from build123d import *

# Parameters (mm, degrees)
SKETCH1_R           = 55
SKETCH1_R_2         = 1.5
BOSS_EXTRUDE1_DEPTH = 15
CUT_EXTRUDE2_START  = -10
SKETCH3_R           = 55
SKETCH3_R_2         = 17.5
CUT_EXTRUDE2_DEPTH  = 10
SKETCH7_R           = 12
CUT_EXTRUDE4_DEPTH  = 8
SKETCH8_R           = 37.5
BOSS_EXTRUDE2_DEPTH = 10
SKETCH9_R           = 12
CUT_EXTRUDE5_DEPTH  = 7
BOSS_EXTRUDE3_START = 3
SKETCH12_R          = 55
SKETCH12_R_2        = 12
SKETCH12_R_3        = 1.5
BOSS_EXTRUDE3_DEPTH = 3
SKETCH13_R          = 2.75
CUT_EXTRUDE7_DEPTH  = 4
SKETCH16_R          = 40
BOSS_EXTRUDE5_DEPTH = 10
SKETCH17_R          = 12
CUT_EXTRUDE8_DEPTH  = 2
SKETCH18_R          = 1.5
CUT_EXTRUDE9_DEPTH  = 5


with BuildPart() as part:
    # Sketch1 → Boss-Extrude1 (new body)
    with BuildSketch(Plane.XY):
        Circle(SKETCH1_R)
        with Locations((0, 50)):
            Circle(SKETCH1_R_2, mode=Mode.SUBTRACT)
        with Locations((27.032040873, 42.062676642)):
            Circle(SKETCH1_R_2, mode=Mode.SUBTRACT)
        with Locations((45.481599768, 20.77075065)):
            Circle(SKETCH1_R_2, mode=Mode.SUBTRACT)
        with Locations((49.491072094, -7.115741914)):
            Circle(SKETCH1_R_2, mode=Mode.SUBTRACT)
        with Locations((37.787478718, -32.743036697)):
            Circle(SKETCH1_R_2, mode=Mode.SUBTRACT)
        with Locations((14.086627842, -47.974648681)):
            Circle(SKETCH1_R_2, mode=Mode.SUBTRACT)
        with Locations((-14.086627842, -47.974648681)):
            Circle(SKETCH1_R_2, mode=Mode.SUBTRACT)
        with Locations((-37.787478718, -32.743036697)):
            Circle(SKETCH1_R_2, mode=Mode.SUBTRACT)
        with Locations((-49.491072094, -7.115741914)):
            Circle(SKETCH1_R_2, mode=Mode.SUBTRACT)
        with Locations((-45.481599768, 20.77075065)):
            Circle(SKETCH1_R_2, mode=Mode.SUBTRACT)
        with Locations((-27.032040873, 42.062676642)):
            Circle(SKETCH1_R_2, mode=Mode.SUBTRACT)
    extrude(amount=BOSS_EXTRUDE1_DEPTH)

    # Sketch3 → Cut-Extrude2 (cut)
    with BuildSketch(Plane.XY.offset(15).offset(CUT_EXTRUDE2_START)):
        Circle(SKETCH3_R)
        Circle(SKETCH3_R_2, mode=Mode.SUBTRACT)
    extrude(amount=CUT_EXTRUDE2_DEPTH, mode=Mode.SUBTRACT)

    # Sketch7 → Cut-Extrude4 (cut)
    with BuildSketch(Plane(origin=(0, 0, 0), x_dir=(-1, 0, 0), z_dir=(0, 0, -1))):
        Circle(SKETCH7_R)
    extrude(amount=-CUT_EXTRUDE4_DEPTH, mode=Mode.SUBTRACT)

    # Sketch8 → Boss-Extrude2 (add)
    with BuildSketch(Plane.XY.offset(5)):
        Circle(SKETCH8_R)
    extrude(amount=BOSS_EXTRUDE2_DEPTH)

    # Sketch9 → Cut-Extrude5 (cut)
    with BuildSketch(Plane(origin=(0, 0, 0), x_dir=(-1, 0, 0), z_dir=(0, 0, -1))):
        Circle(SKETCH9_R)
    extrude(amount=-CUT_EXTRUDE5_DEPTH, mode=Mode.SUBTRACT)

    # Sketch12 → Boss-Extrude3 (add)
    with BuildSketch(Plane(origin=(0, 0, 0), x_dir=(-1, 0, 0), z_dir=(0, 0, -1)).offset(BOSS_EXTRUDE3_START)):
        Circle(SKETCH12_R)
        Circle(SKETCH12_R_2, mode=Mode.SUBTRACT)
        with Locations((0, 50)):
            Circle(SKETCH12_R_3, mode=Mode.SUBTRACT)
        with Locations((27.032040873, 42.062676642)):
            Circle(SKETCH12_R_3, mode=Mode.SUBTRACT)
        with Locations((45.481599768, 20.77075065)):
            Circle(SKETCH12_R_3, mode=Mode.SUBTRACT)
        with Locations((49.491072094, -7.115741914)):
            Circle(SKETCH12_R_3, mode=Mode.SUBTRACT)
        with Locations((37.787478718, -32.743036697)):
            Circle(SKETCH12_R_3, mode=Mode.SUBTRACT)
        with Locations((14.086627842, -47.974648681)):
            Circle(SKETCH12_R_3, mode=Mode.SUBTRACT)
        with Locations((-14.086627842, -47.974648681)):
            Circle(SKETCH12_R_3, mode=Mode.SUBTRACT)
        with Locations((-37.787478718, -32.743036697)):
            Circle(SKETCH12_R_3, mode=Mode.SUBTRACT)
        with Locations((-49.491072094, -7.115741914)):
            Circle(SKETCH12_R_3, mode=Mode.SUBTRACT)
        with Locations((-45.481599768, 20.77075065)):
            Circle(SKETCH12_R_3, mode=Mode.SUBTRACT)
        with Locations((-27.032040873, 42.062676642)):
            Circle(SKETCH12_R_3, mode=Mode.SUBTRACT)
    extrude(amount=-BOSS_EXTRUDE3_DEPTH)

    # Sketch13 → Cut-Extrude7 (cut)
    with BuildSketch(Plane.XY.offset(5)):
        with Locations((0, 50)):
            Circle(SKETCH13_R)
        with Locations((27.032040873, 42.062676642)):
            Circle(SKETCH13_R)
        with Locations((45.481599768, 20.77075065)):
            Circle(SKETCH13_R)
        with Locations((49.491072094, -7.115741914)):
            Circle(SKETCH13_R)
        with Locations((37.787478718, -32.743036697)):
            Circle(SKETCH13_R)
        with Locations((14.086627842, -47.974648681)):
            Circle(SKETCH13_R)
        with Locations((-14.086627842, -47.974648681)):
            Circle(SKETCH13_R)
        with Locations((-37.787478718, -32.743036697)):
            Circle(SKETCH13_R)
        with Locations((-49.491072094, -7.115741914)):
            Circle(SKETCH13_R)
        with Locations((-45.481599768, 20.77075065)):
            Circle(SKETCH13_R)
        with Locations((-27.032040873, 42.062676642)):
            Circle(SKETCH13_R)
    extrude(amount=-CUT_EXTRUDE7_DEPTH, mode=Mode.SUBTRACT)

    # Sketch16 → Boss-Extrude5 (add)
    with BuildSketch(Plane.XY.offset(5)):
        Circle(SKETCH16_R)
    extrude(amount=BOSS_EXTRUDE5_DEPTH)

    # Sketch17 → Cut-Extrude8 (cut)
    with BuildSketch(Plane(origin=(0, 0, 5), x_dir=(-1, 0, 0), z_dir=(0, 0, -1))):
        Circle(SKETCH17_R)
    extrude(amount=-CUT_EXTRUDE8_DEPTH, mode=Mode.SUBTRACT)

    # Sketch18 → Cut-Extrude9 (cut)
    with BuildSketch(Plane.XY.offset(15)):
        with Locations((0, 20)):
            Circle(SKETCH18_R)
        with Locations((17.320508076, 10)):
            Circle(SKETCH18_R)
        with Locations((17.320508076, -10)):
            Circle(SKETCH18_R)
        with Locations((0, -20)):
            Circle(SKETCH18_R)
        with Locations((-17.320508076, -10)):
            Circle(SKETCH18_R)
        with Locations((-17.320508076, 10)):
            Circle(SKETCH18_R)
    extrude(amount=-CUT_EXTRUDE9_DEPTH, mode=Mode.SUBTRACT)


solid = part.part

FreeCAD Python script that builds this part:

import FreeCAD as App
import Part
import Sketcher
from FreeCAD import Vector

doc = App.newDocument("Part")
params = doc.addObject("Spreadsheet::Sheet", "Params")
for row, (alias, value) in enumerate([
    ("sketch1_diameter", "110 mm"),
    ("sketch1_diameter2", "3 mm"),
    ("pad1_length", "15 mm"),
    ("sketch2_diameter", "110 mm"),
    ("sketch2_diameter2", "35 mm"),
    ("pocket1_length", "10 mm"),
    ("sketch3_diameter", "24 mm"),
    ("pocket2_length", "8 mm"),
    ("sketch4_diameter", "75 mm"),
    ("pad2_length", "10 mm"),
    ("sketch5_diameter", "24 mm"),
    ("pocket3_length", "7 mm"),
    ("sketch6_diameter", "110 mm"),
    ("sketch6_diameter2", "3 mm"),
    ("sketch6_diameter3", "24 mm"),
    ("pad3_length", "3 mm"),
    ("sketch7_diameter", "5.5 mm"),
    ("pocket4_length", "4 mm"),
    ("sketch8_diameter", "80 mm"),
    ("pad4_length", "10 mm"),
    ("sketch9_diameter", "24 mm"),
    ("pocket5_length", "2 mm"),
    ("sketch10_diameter", "3 mm"),
    ("pocket6_length", "5 mm"),
], start=1):
    params.set(f"A{row}", alias)
    params.set(f"B{row}", "=" + value)
    params.setAlias(f"B{row}", alias)

body = doc.addObject("PartDesign::Body", "Body")

sketch1 = doc.addObject("Sketcher::SketchObject", "Sketch")
body.addObject(sketch1)
sketch1.AttachmentSupport = (doc.XY_Plane, [""])
sketch1.MapMode = "FlatFace"
sketch1.addGeometry(Part.Circle(Vector(0, 0, 0), Vector(0, 0, 1), 55), False)
sketch1.addGeometry(Part.Circle(Vector(-37.8, -32.7, 0), Vector(0, 0, 1), 1.5), False)
sketch1.addGeometry(Part.Circle(Vector(-14.1, -48, 0), Vector(0, 0, 1), 1.5), False)
sketch1.addGeometry(Part.Circle(Vector(-49.5, -7.1, 0), Vector(0, 0, 1), 1.5), False)
sketch1.addGeometry(Part.Circle(Vector(14.1, -48, 0), Vector(0, 0, 1), 1.5), False)
sketch1.addGeometry(Part.Circle(Vector(37.8, -32.7, 0), Vector(0, 0, 1), 1.5), False)
sketch1.addGeometry(Part.Circle(Vector(49.5, -7.1, 0), Vector(0, 0, 1), 1.5), False)
sketch1.addGeometry(Part.Circle(Vector(-45.5, 20.8, 0), Vector(0, 0, 1), 1.5), False)
sketch1.addGeometry(Part.Circle(Vector(-27, 42.1, 0), Vector(0, 0, 1), 1.5), False)
sketch1.addGeometry(Part.Circle(Vector(45.5, 20.8, 0), Vector(0, 0, 1), 1.5), False)
sketch1.addGeometry(Part.Circle(Vector(0, 50, 0), Vector(0, 0, 1), 1.5), False)
sketch1.addGeometry(Part.Circle(Vector(27, 42.1, 0), Vector(0, 0, 1), 1.5), False)
sketch1.addConstraint(Sketcher.Constraint("Coincident", 0, 3, -1, 1))
sketch1.addConstraint(Sketcher.Constraint("Equal", 1, 2))
sketch1.addConstraint(Sketcher.Constraint("Equal", 2, 3))
sketch1.addConstraint(Sketcher.Constraint("Equal", 3, 4))
sketch1.addConstraint(Sketcher.Constraint("Equal", 4, 5))
sketch1.addConstraint(Sketcher.Constraint("Equal", 5, 6))
sketch1.addConstraint(Sketcher.Constraint("Equal", 6, 7))
sketch1.addConstraint(Sketcher.Constraint("Equal", 7, 8))
sketch1.addConstraint(Sketcher.Constraint("Equal", 8, 9))
sketch1.addConstraint(Sketcher.Constraint("Equal", 9, 10))
sketch1.addConstraint(Sketcher.Constraint("Equal", 10, 11))
sketch1.addConstraint(Sketcher.Constraint("Symmetric", 2, 3, 4, 3, -2))
sketch1.addConstraint(Sketcher.Constraint("Symmetric", 1, 3, 5, 3, -2))
sketch1.addConstraint(Sketcher.Constraint("Symmetric", 3, 3, 6, 3, -2))
sketch1.addConstraint(Sketcher.Constraint("Symmetric", 7, 3, 9, 3, -2))
sketch1.addConstraint(Sketcher.Constraint("Symmetric", 8, 3, 11, 3, -2))
sketch1.addConstraint(Sketcher.Constraint("PointOnObject", 10, 3, -2))
sketch1.addConstraint(Sketcher.Constraint("Diameter", 0, 110.0))
sketch1.addConstraint(Sketcher.Constraint("Diameter", 1, 3.0))
sketch1.addConstraint(Sketcher.Constraint("DistanceY", -1, 1, 10, 3, 50.0))
sketch1.addConstraint(Sketcher.Constraint("DistanceX", 7, 3, -1, 1, 45.4816))
sketch1.addConstraint(Sketcher.Constraint("DistanceX", 3, 3, 4, 3, 63.5777))
sketch1.addConstraint(Sketcher.Constraint("DistanceY", 2, 3, 7, 3, 68.745399))
sketch1.addConstraint(Sketcher.Constraint("DistanceX", 1, 3, -1, 1, 37.787479))
sketch1.addConstraint(Sketcher.Constraint("DistanceY", 2, 3, -1, 1, 47.974649))
sketch1.addConstraint(Sketcher.Constraint("DistanceY", 3, 3, -1, 1, 7.115742))
sketch1.addConstraint(Sketcher.Constraint("DistanceX", 8, 3, -1, 1, 27.032041))
sketch1.addConstraint(Sketcher.Constraint("DistanceX", 1, 3, 2, 3, 23.700851))
sketch1.addConstraint(Sketcher.Constraint("DistanceY", 2, 3, 1, 3, 15.231612))
sketch1.addConstraint(Sketcher.Constraint("DistanceY", 3, 3, 8, 3, 49.178419))
sketch1.setExpression("Constraints[17]", "Params.sketch1_diameter")
sketch1.setExpression("Constraints[18]", "Params.sketch1_diameter2")
pad1 = doc.addObject("PartDesign::Pad", "Pad")
body.addObject(pad1)
pad1.Profile = sketch1
pad1.setExpression("Length", "Params.pad1_length")

sketch2 = doc.addObject("Sketcher::SketchObject", "Sketch001")
body.addObject(sketch2)
sketch2.AttachmentSupport = (doc.XY_Plane, [""])
sketch2.MapMode = "FlatFace"
sketch2.AttachmentOffset = App.Placement(Vector(0, 0, 5), App.Rotation())
sketch2.addGeometry(Part.Circle(Vector(0, 0, 0), Vector(0, 0, 1), 55), False)
sketch2.addGeometry(Part.Circle(Vector(0, 0, 0), Vector(0, 0, 1), 18), False)
sketch2.addConstraint(Sketcher.Constraint("Coincident", 0, 3, -1, 1))
sketch2.addConstraint(Sketcher.Constraint("Coincident", 1, 3, -1, 1))
sketch2.addConstraint(Sketcher.Constraint("Diameter", 0, 110.0))
sketch2.addConstraint(Sketcher.Constraint("Diameter", 1, 35.0))
sketch2.setExpression("Constraints[2]", "Params.sketch2_diameter")
sketch2.setExpression("Constraints[3]", "Params.sketch2_diameter2")
pocket1 = doc.addObject("PartDesign::Pocket", "Pocket")
body.addObject(pocket1)
pocket1.Profile = sketch2
pocket1.setExpression("Length", "Params.pocket1_length")
pocket1.Reversed = True

sketch3 = doc.addObject("Sketcher::SketchObject", "Sketch002")
body.addObject(sketch3)
sketch3.AttachmentSupport = (doc.XY_Plane, [""])
sketch3.MapMode = "FlatFace"
sketch3.addGeometry(Part.Circle(Vector(0, 0, 0), Vector(0, 0, 1), 12), False)
sketch3.addConstraint(Sketcher.Constraint("Coincident", 0, 3, -1, 1))
sketch3.addConstraint(Sketcher.Constraint("Diameter", 0, 24.0))
sketch3.setExpression("Constraints[1]", "Params.sketch3_diameter")
pocket2 = doc.addObject("PartDesign::Pocket", "Pocket001")
body.addObject(pocket2)
pocket2.Profile = sketch3
pocket2.setExpression("Length", "Params.pocket2_length")
pocket2.Reversed = True

sketch4 = doc.addObject("Sketcher::SketchObject", "Sketch003")
body.addObject(sketch4)
sketch4.AttachmentSupport = (doc.XY_Plane, [""])
sketch4.MapMode = "FlatFace"
sketch4.AttachmentOffset = App.Placement(Vector(0, 0, 5), App.Rotation())
sketch4.addGeometry(Part.Circle(Vector(0, 0, 0), Vector(0, 0, 1), 38), False)
sketch4.addConstraint(Sketcher.Constraint("Coincident", 0, 3, -1, 1))
sketch4.addConstraint(Sketcher.Constraint("Diameter", 0, 75.0))
sketch4.setExpression("Constraints[1]", "Params.sketch4_diameter")
pad2 = doc.addObject("PartDesign::Pad", "Pad001")
body.addObject(pad2)
pad2.Profile = sketch4
pad2.setExpression("Length", "Params.pad2_length")

sketch5 = doc.addObject("Sketcher::SketchObject", "Sketch004")
body.addObject(sketch5)
sketch5.AttachmentSupport = (doc.XY_Plane, [""])
sketch5.MapMode = "FlatFace"
sketch5.addGeometry(Part.Circle(Vector(0, 0, 0), Vector(0, 0, 1), 12), False)
sketch5.addConstraint(Sketcher.Constraint("Coincident", 0, 3, -1, 1))
sketch5.addConstraint(Sketcher.Constraint("Diameter", 0, 24.0))
sketch5.setExpression("Constraints[1]", "Params.sketch5_diameter")
pocket3 = doc.addObject("PartDesign::Pocket", "Pocket002")
body.addObject(pocket3)
pocket3.Profile = sketch5
pocket3.setExpression("Length", "Params.pocket3_length")
pocket3.Reversed = True

sketch6 = doc.addObject("Sketcher::SketchObject", "Sketch005")
body.addObject(sketch6)
sketch6.AttachmentSupport = (doc.XY_Plane, [""])
sketch6.MapMode = "FlatFace"
sketch6.AttachmentOffset = App.Placement(Vector(0, 0, -3), App.Rotation())
sketch6.addGeometry(Part.Circle(Vector(0, 0, 0), Vector(0, 0, 1), 55), False)
sketch6.addGeometry(Part.Circle(Vector(37.8, -32.7, 0), Vector(0, 0, 1), 1.5), False)
sketch6.addGeometry(Part.Circle(Vector(14.1, -48, 0), Vector(0, 0, 1), 1.5), False)
sketch6.addGeometry(Part.Circle(Vector(49.5, -7.1, 0), Vector(0, 0, 1), 1.5), False)
sketch6.addGeometry(Part.Circle(Vector(-14.1, -48, 0), Vector(0, 0, 1), 1.5), False)
sketch6.addGeometry(Part.Circle(Vector(-37.8, -32.7, 0), Vector(0, 0, 1), 1.5), False)
sketch6.addGeometry(Part.Circle(Vector(0, 0, 0), Vector(0, 0, 1), 12), False)
sketch6.addGeometry(Part.Circle(Vector(-49.5, -7.1, 0), Vector(0, 0, 1), 1.5), False)
sketch6.addGeometry(Part.Circle(Vector(45.5, 20.8, 0), Vector(0, 0, 1), 1.5), False)
sketch6.addGeometry(Part.Circle(Vector(27, 42.1, 0), Vector(0, 0, 1), 1.5), False)
sketch6.addGeometry(Part.Circle(Vector(-45.5, 20.8, 0), Vector(0, 0, 1), 1.5), False)
sketch6.addGeometry(Part.Circle(Vector(0, 50, 0), Vector(0, 0, 1), 1.5), False)
sketch6.addGeometry(Part.Circle(Vector(-27, 42.1, 0), Vector(0, 0, 1), 1.5), False)
sketch6.addConstraint(Sketcher.Constraint("Coincident", 0, 3, -1, 1))
sketch6.addConstraint(Sketcher.Constraint("Coincident", 6, 3, -1, 1))
sketch6.addConstraint(Sketcher.Constraint("Equal", 1, 2))
sketch6.addConstraint(Sketcher.Constraint("Equal", 2, 3))
sketch6.addConstraint(Sketcher.Constraint("Equal", 3, 4))
sketch6.addConstraint(Sketcher.Constraint("Equal", 4, 5))
sketch6.addConstraint(Sketcher.Constraint("Equal", 5, 7))
sketch6.addConstraint(Sketcher.Constraint("Equal", 7, 8))
sketch6.addConstraint(Sketcher.Constraint("Equal", 8, 9))
sketch6.addConstraint(Sketcher.Constraint("Equal", 9, 10))
sketch6.addConstraint(Sketcher.Constraint("Equal", 10, 11))
sketch6.addConstraint(Sketcher.Constraint("Equal", 11, 12))
sketch6.addConstraint(Sketcher.Constraint("Symmetric", 2, 3, 4, 3, -2))
sketch6.addConstraint(Sketcher.Constraint("Symmetric", 1, 3, 5, 3, -2))
sketch6.addConstraint(Sketcher.Constraint("Symmetric", 3, 3, 7, 3, -2))
sketch6.addConstraint(Sketcher.Constraint("Symmetric", 8, 3, 10, 3, -2))
sketch6.addConstraint(Sketcher.Constraint("Symmetric", 9, 3, 12, 3, -2))
sketch6.addConstraint(Sketcher.Constraint("PointOnObject", 11, 3, -2))
sketch6.addConstraint(Sketcher.Constraint("Diameter", 0, 110.0))
sketch6.addConstraint(Sketcher.Constraint("Diameter", 1, 3.0))
sketch6.addConstraint(Sketcher.Constraint("Diameter", 6, 24.0))
sketch6.addConstraint(Sketcher.Constraint("DistanceY", -1, 1, 11, 3, 50.0))
sketch6.addConstraint(Sketcher.Constraint("DistanceX", -1, 1, 8, 3, 45.4816))
sketch6.addConstraint(Sketcher.Constraint("DistanceX", 4, 3, 3, 3, 63.5777))
sketch6.addConstraint(Sketcher.Constraint("DistanceY", 2, 3, 8, 3, 68.745399))
sketch6.addConstraint(Sketcher.Constraint("DistanceX", -1, 1, 1, 3, 37.787479))
sketch6.addConstraint(Sketcher.Constraint("DistanceY", 2, 3, -1, 1, 47.974649))
sketch6.addConstraint(Sketcher.Constraint("DistanceY", 3, 3, -1, 1, 7.115742))
sketch6.addConstraint(Sketcher.Constraint("DistanceX", -1, 1, 9, 3, 27.032041))
sketch6.addConstraint(Sketcher.Constraint("DistanceX", 2, 3, 1, 3, 23.700851))
sketch6.addConstraint(Sketcher.Constraint("DistanceY", 2, 3, 1, 3, 15.231612))
sketch6.addConstraint(Sketcher.Constraint("DistanceY", 3, 3, 9, 3, 49.178419))
sketch6.setExpression("Constraints[18]", "Params.sketch6_diameter")
sketch6.setExpression("Constraints[19]", "Params.sketch6_diameter2")
sketch6.setExpression("Constraints[20]", "Params.sketch6_diameter3")
pad3 = doc.addObject("PartDesign::Pad", "Pad002")
body.addObject(pad3)
pad3.Profile = sketch6
pad3.setExpression("Length", "Params.pad3_length")

sketch7 = doc.addObject("Sketcher::SketchObject", "Sketch006")
body.addObject(sketch7)
sketch7.AttachmentSupport = (doc.XY_Plane, [""])
sketch7.MapMode = "FlatFace"
sketch7.AttachmentOffset = App.Placement(Vector(0, 0, 5), App.Rotation())
sketch7.addGeometry(Part.Circle(Vector(0, 50, 0), Vector(0, 0, 1), 2.8), False)
sketch7.addGeometry(Part.Circle(Vector(27, 42.1, 0), Vector(0, 0, 1), 2.8), False)
sketch7.addGeometry(Part.Circle(Vector(45.5, 20.8, 0), Vector(0, 0, 1), 2.8), False)
sketch7.addGeometry(Part.Circle(Vector(49.5, -7.1, 0), Vector(0, 0, 1), 2.8), False)
sketch7.addGeometry(Part.Circle(Vector(37.8, -32.7, 0), Vector(0, 0, 1), 2.8), False)
sketch7.addGeometry(Part.Circle(Vector(14.1, -48, 0), Vector(0, 0, 1), 2.8), False)
sketch7.addGeometry(Part.Circle(Vector(-14.1, -48, 0), Vector(0, 0, 1), 2.8), False)
sketch7.addGeometry(Part.Circle(Vector(-37.8, -32.7, 0), Vector(0, 0, 1), 2.8), False)
sketch7.addGeometry(Part.Circle(Vector(-49.5, -7.1, 0), Vector(0, 0, 1), 2.8), False)
sketch7.addGeometry(Part.Circle(Vector(-45.5, 20.8, 0), Vector(0, 0, 1), 2.8), False)
sketch7.addGeometry(Part.Circle(Vector(-27, 42.1, 0), Vector(0, 0, 1), 2.8), False)
sketch7.addConstraint(Sketcher.Constraint("Equal", 0, 1))
sketch7.addConstraint(Sketcher.Constraint("Equal", 1, 2))
sketch7.addConstraint(Sketcher.Constraint("Equal", 2, 3))
sketch7.addConstraint(Sketcher.Constraint("Equal", 3, 4))
sketch7.addConstraint(Sketcher.Constraint("Equal", 4, 5))
sketch7.addConstraint(Sketcher.Constraint("Equal", 5, 6))
sketch7.addConstraint(Sketcher.Constraint("Equal", 6, 7))
sketch7.addConstraint(Sketcher.Constraint("Equal", 7, 8))
sketch7.addConstraint(Sketcher.Constraint("Equal", 8, 9))
sketch7.addConstraint(Sketcher.Constraint("Equal", 9, 10))
sketch7.addConstraint(Sketcher.Constraint("Symmetric", 5, 3, 6, 3, -2))
sketch7.addConstraint(Sketcher.Constraint("Symmetric", 4, 3, 7, 3, -2))
sketch7.addConstraint(Sketcher.Constraint("Symmetric", 3, 3, 8, 3, -2))
sketch7.addConstraint(Sketcher.Constraint("Symmetric", 2, 3, 9, 3, -2))
sketch7.addConstraint(Sketcher.Constraint("Symmetric", 1, 3, 10, 3, -2))
sketch7.addConstraint(Sketcher.Constraint("PointOnObject", 0, 3, -2))
sketch7.addConstraint(Sketcher.Constraint("Diameter", 0, 5.5))
sketch7.addConstraint(Sketcher.Constraint("DistanceY", -1, 1, 0, 3, 50.0))
sketch7.addConstraint(Sketcher.Constraint("DistanceX", -1, 1, 2, 3, 45.4816))
sketch7.addConstraint(Sketcher.Constraint("DistanceY", 5, 3, 2, 3, 68.745399))
sketch7.addConstraint(Sketcher.Constraint("DistanceX", 6, 3, 3, 3, 63.5777))
sketch7.addConstraint(Sketcher.Constraint("DistanceX", -1, 1, 1, 3, 27.032041))
sketch7.addConstraint(Sketcher.Constraint("DistanceY", -1, 1, 2, 3, 20.770751))
sketch7.addConstraint(Sketcher.Constraint("DistanceY", 3, 3, -1, 1, 7.115742))
sketch7.addConstraint(Sketcher.Constraint("DistanceX", -1, 1, 4, 3, 37.787479))
sketch7.addConstraint(Sketcher.Constraint("DistanceX", 1, 3, 3, 3, 22.459031))
sketch7.addConstraint(Sketcher.Constraint("DistanceY", 3, 3, 1, 3, 49.178419))
sketch7.addConstraint(Sketcher.Constraint("DistanceY", 5, 3, 4, 3, 15.231612))
sketch7.setExpression("Constraints[16]", "Params.sketch7_diameter")
pocket4 = doc.addObject("PartDesign::Pocket", "Pocket003")
body.addObject(pocket4)
pocket4.Profile = sketch7
pocket4.setExpression("Length", "Params.pocket4_length")

sketch8 = doc.addObject("Sketcher::SketchObject", "Sketch007")
body.addObject(sketch8)
sketch8.AttachmentSupport = (doc.XY_Plane, [""])
sketch8.MapMode = "FlatFace"
sketch8.AttachmentOffset = App.Placement(Vector(0, 0, 5), App.Rotation())
sketch8.addGeometry(Part.Circle(Vector(0, 0, 0), Vector(0, 0, 1), 40), False)
sketch8.addConstraint(Sketcher.Constraint("Coincident", 0, 3, -1, 1))
sketch8.addConstraint(Sketcher.Constraint("Diameter", 0, 80.0))
sketch8.setExpression("Constraints[1]", "Params.sketch8_diameter")
pad4 = doc.addObject("PartDesign::Pad", "Pad003")
body.addObject(pad4)
pad4.Profile = sketch8
pad4.setExpression("Length", "Params.pad4_length")

sketch9 = doc.addObject("Sketcher::SketchObject", "Sketch008")
body.addObject(sketch9)
sketch9.AttachmentSupport = (doc.XY_Plane, [""])
sketch9.MapMode = "FlatFace"
sketch9.AttachmentOffset = App.Placement(Vector(0, 0, 5), App.Rotation())
sketch9.addGeometry(Part.Circle(Vector(0, 0, 0), Vector(0, 0, 1), 12), False)
sketch9.addConstraint(Sketcher.Constraint("Coincident", 0, 3, -1, 1))
sketch9.addConstraint(Sketcher.Constraint("Diameter", 0, 24.0))
sketch9.setExpression("Constraints[1]", "Params.sketch9_diameter")
pocket5 = doc.addObject("PartDesign::Pocket", "Pocket004")
body.addObject(pocket5)
pocket5.Profile = sketch9
pocket5.setExpression("Length", "Params.pocket5_length")
pocket5.Reversed = True

sketch10 = doc.addObject("Sketcher::SketchObject", "Sketch009")
body.addObject(sketch10)
sketch10.AttachmentSupport = (doc.XY_Plane, [""])
sketch10.MapMode = "FlatFace"
sketch10.AttachmentOffset = App.Placement(Vector(0, 0, 15), App.Rotation())
sketch10.addGeometry(Part.Circle(Vector(0, 20, 0), Vector(0, 0, 1), 1.5), False)
sketch10.addGeometry(Part.Circle(Vector(17.3, 10, 0), Vector(0, 0, 1), 1.5), False)
sketch10.addGeometry(Part.Circle(Vector(17.3, -10, 0), Vector(0, 0, 1), 1.5), False)
sketch10.addGeometry(Part.Circle(Vector(0, -20, 0), Vector(0, 0, 1), 1.5), False)
sketch10.addGeometry(Part.Circle(Vector(-17.3, -10, 0), Vector(0, 0, 1), 1.5), False)
sketch10.addGeometry(Part.Circle(Vector(-17.3, 10, 0), Vector(0, 0, 1), 1.5), False)
sketch10.addConstraint(Sketcher.Constraint("Equal", 0, 1))
sketch10.addConstraint(Sketcher.Constraint("Equal", 1, 2))
sketch10.addConstraint(Sketcher.Constraint("Equal", 2, 3))
sketch10.addConstraint(Sketcher.Constraint("Equal", 3, 4))
sketch10.addConstraint(Sketcher.Constraint("Equal", 4, 5))
sketch10.addConstraint(Sketcher.Constraint("Symmetric", 0, 3, 3, 3, -1, 1))
sketch10.addConstraint(Sketcher.Constraint("Symmetric", 1, 3, 4, 3, -1, 1))
sketch10.addConstraint(Sketcher.Constraint("Symmetric", 2, 3, 5, 3, -1, 1))
sketch10.addConstraint(Sketcher.Constraint("Symmetric", 2, 3, 4, 3, -2))
sketch10.addConstraint(Sketcher.Constraint("PointOnObject", 0, 3, -2))
sketch10.addConstraint(Sketcher.Constraint("Diameter", 0, 3.0))
sketch10.addConstraint(Sketcher.Constraint("DistanceY", -1, 1, 0, 3, 20.0))
sketch10.addConstraint(Sketcher.Constraint("DistanceY", -1, 1, 1, 3, 10.0))
sketch10.addConstraint(Sketcher.Constraint("DistanceX", -1, 1, 1, 3, 17.320508))
sketch10.setExpression("Constraints[10]", "Params.sketch10_diameter")
pocket6 = doc.addObject("PartDesign::Pocket", "Pocket005")
body.addObject(pocket6)
pocket6.Profile = sketch10
pocket6.setExpression("Length", "Params.pocket6_length")

doc.recompute()
